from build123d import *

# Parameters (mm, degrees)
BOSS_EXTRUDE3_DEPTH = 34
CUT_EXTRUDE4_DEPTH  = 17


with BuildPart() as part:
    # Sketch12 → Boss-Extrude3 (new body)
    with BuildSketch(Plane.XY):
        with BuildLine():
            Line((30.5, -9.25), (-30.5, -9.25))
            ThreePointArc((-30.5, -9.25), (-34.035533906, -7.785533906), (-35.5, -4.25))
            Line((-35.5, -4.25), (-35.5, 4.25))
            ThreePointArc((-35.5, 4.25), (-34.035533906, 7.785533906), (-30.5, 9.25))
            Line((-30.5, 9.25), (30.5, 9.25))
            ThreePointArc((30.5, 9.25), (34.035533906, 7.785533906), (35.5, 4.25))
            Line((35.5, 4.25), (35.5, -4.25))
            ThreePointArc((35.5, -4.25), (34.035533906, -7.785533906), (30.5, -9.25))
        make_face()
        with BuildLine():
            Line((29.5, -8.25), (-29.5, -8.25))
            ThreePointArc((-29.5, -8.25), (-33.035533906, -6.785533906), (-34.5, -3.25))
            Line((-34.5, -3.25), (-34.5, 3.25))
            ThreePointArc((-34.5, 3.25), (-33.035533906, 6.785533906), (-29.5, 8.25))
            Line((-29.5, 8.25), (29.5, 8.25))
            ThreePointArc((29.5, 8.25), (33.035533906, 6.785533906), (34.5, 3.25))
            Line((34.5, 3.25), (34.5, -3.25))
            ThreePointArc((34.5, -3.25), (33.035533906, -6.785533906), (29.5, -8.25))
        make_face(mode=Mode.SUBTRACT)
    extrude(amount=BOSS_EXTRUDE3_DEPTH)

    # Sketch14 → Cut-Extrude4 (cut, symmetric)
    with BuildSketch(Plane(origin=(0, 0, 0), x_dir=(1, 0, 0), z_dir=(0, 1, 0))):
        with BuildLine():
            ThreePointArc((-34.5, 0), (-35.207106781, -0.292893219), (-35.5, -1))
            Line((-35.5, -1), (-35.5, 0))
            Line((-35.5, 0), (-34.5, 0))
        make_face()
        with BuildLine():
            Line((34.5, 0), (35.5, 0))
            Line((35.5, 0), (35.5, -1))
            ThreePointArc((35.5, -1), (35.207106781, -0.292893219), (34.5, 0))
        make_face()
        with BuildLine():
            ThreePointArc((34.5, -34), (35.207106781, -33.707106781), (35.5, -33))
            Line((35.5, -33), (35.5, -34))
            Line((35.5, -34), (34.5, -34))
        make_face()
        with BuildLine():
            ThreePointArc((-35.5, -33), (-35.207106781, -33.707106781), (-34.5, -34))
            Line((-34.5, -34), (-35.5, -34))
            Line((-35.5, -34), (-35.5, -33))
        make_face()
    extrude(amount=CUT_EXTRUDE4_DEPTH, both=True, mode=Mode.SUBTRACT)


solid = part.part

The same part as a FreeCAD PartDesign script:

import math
import FreeCAD as App
import Part
import Sketcher

V = App.Vector
Q = App.Units.Quantity

doc = App.newDocument("Part")
params = doc.addObject("Spreadsheet::Sheet", "Params")
for row, (alias, value) in enumerate([
    ("sketch1_radius", "5 mm"),
    ("sketch1_width", "61 mm"),
    ("sketch1_width2", "59 mm"),
    ("sketch1_height", "8.5 mm"),
    ("sketch1_height2", "6.5 mm"),
    ("pad1_length", "34 mm"),
    ("sketch2_radius", "1 mm"),
    ("pocket1_length", "34 mm"),
], start=1):
    params.set(f"A{row}", alias)
    params.set(f"B{row}", "=" + value)
    params.setAlias(f"B{row}", alias)

body = doc.addObject("PartDesign::Body", "Body")

sketch1 = body.newObject("Sketcher::SketchObject", "Sketch")
sketch1.AttachmentSupport = (doc.getObject("XY_Plane"), [""])
sketch1.MapMode = "FlatFace"
sketch1.addGeometry(Part.LineSegment(V(-30, -9, 0), V(30, -9, 0)), False)
sketch1.addGeometry(Part.ArcOfCircle(Part.Circle(V(30, -4, 0), V(0, 0, 1), 5), math.radians(-90), math.radians(0)), False)
sketch1.addGeometry(Part.LineSegment(V(36, -4, 0), V(36, 4, 0)), False)
sketch1.addGeometry(Part.ArcOfCircle(Part.Circle(V(30, 4, 0), V(0, 0, 1), 5), math.radians(0), math.radians(90)), False)
sketch1.addGeometry(Part.LineSegment(V(30, 9, 0), V(-30, 9, 0)), False)
sketch1.addGeometry(Part.ArcOfCircle(Part.Circle(V(-30, 4, 0), V(0, 0, 1), 5), math.radians(90), math.radians(180)), False)
sketch1.addGeometry(Part.LineSegment(V(-36, 4, 0), V(-36, -4, 0)), False)
sketch1.addGeometry(Part.ArcOfCircle(Part.Circle(V(-30, -4, 0), V(0, 0, 1), 5), math.radians(180), math.radians(270)), False)
sketch1.addGeometry(Part.LineSegment(V(30, -8, 0), V(-30, -8, 0)), False)
sketch1.addGeometry(Part.ArcOfCircle(Part.Circle(V(-30, -3, 0), V(0, 0, 1), 5), math.radians(180), math.radians(270)), False)
sketch1.addGeometry(Part.LineSegment(V(-34, -3, 0), V(-34, 3, 0)), False)
sketch1.addGeometry(Part.ArcOfCircle(Part.Circle(V(-30, 3, 0), V(0, 0, 1), 5), math.radians(90), math.radians(180)), False)
sketch1.addGeometry(Part.LineSegment(V(-30, 8, 0), V(30, 8, 0)), False)
sketch1.addGeometry(Part.ArcOfCircle(Part.Circle(V(30, 3, 0), V(0, 0, 1), 5), math.radians(0), math.radians(90)), False)
sketch1.addGeometry(Part.LineSegment(V(34, 3, 0), V(34, -3, 0)), False)
sketch1.addGeometry(Part.ArcOfCircle(Part.Circle(V(30, -3, 0), V(0, 0, 1), 5), math.radians(-90), math.radians(0)), False)
sketch1.addConstraint(Sketcher.Constraint("Tangent", 0, 2, 1, 1))
sketch1.addConstraint(Sketcher.Constraint("Tangent", 1, 2, 2, 1))
sketch1.addConstraint(Sketcher.Constraint("Tangent", 2, 2, 3, 1))
sketch1.addConstraint(Sketcher.Constraint("Tangent", 3, 2, 4, 1))
sketch1.addConstraint(Sketcher.Constraint("Tangent", 4, 2, 5, 1))
sketch1.addConstraint(Sketcher.Constraint("Tangent", 5, 2, 6, 1))
sketch1.addConstraint(Sketcher.Constraint("Tangent", 6, 2, 7, 1))
sketch1.addConstraint(Sketcher.Constraint("Tangent", 7, 2, 0, 1))
sketch1.addConstraint(Sketcher.Constraint("Tangent", 8, 2, 9, 2))
sketch1.addConstraint(Sketcher.Constraint("Tangent", 9, 1, 10, 1))
sketch1.addConstraint(Sketcher.Constraint("Tangent", 10, 2, 11, 2))
sketch1.addConstraint(Sketcher.Constraint("Tangent", 11, 1, 12, 1))
sketch1.addConstraint(Sketcher.Constraint("Tangent", 12, 2, 13, 2))
sketch1.addConstraint(Sketcher.Constraint("Tangent", 13, 1, 14, 1))
sketch1.addConstraint(Sketcher.Constraint("Tangent", 14, 2, 15, 2))
sketch1.addConstraint(Sketcher.Constraint("Tangent", 15, 1, 8, 1))
sketch1.addConstraint(Sketcher.Constraint("Horizontal", 0))
sketch1.addConstraint(Sketcher.Constraint("Vertical", 2))
sketch1.addConstraint(Sketcher.Constraint("Horizontal", 4))
sketch1.addConstraint(Sketcher.Constraint("Vertical", 6))
sketch1.addConstraint(Sketcher.Constraint("Horizontal", 8))
sketch1.addConstraint(Sketcher.Constraint("Vertical", 10))
sketch1.addConstraint(Sketcher.Constraint("Horizontal", 12))
sketch1.addConstraint(Sketcher.Constraint("Vertical", 14))
sketch1.addConstraint(Sketcher.Constraint("Equal", 1, 3))
sketch1.addConstraint(Sketcher.Constraint("Equal", 3, 5))
sketch1.addConstraint(Sketcher.Constraint("Equal", 5, 7))
sketch1.addConstraint(Sketcher.Constraint("Equal", 7, 9))
sketch1.addConstraint(Sketcher.Constraint("Equal", 9, 11))
sketch1.addConstraint(Sketcher.Constraint("Equal", 11, 13))
sketch1.addConstraint(Sketcher.Constraint("Equal", 13, 15))
sketch1.addConstraint(Sketcher.Constraint("Symmetric", 1, 3, 5, 3, -1, 1))
sketch1.addConstraint(Sketcher.Constraint("Symmetric", 9, 3, 13, 3, -1, 1))
sketch1.addConstraint(Sketcher.Constraint("Radius", 1, Q("5 mm")))
sketch1.addConstraint(Sketcher.Constraint("DistanceX", 0, 1, 0, 2, Q("61 mm")))
sketch1.addConstraint(Sketcher.Constraint("DistanceX", 8, 2, 8, 1, Q("59 mm")))
sketch1.addConstraint(Sketcher.Constraint("DistanceY", 2, 1, 2, 2, Q("8.5 mm")))
sketch1.addConstraint(Sketcher.Constraint("DistanceY", 10, 1, 10, 2, Q("6.5 mm")))
sketch1.setExpression("Constraints[33]", "Params.sketch1_radius")
sketch1.setExpression("Constraints[34]", "Params.sketch1_width")
sketch1.setExpression("Constraints[35]", "Params.sketch1_width2")
sketch1.setExpression("Constraints[36]", "Params.sketch1_height")
sketch1.setExpression("Constraints[37]", "Params.sketch1_height2")
pad1 = body.newObject("PartDesign::Pad", "Pad")
pad1.Profile = sketch1
pad1.setExpression("Length", "Params.pad1_length")

sketch2 = body.newObject("Sketcher::SketchObject", "Sketch001")
sketch2.AttachmentSupport = (doc.getObject("XZ_Plane"), [""])
sketch2.MapMode = "FlatFace"
sketch2.addGeometry(Part.ArcOfCircle(Part.Circle(V(-34.5, 1, 0), V(0, 0, 1), 1), math.radians(-180), math.radians(-90)), False)
sketch2.addGeometry(Part.LineSegment(V(-34.5, 0, 0), V(-35.5, 0, 0)), False)
sketch2.addGeometry(Part.LineSegment(V(-35.5, 0, 0), V(-35.5, 1, 0)), False)
sketch2.addGeometry(Part.LineSegment(V(35.5, 0, 0), V(34.5, 0, 0)), False)
sketch2.addGeometry(Part.ArcOfCircle(Part.Circle(V(34.5, 1, 0), V(0, 0, 1), 1), math.radians(-90), math.radians(0)), False)
sketch2.addGeometry(Part.LineSegment(V(35.5, 1, 0), V(35.5, 0, 0)), False)
sketch2.addGeometry(Part.ArcOfCircle(Part.Circle(V(34.5, 33, 0), V(0, 0, 1), 1), math.radians(0), math.radians(90)), False)
sketch2.addGeometry(Part.LineSegment(V(34.5, 34, 0), V(35.5, 34, 0)), False)
sketch2.addGeometry(Part.LineSegment(V(35.5, 34, 0), V(35.5, 33, 0)), False)
sketch2.addGeometry(Part.ArcOfCircle(Part.Circle(V(-34.5, 33, 0), V(0, 0, 1), 1), math.radians(90), math.radians(180)), False)
sketch2.addGeometry(Part.LineSegment(V(-35.5, 33, 0), V(-35.5, 34, 0)), False)
sketch2.addGeometry(Part.LineSegment(V(-35.5, 34, 0), V(-34.5, 34, 0)), False)
sketch2.addConstraint(Sketcher.Constraint("Tangent", 0, 2, 1, 1))
sketch2.addConstraint(Sketcher.Constraint("Coincident", 1, 2, 2, 1))
sketch2.addConstraint(Sketcher.Constraint("Tangent", 2, 2, 0, 1))
sketch2.addConstraint(Sketcher.Constraint("Tangent", 3, 2, 4, 1))
sketch2.addConstraint(Sketcher.Constraint("Tangent", 4, 2, 5, 1))
sketch2.addConstraint(Sketcher.Constraint("Coincident", 5, 2, 3, 1))
sketch2.addConstraint(Sketcher.Constraint("Tangent", 6, 2, 7, 1))
sketch2.addConstraint(Sketcher.Constraint("Coincident", 7, 2, 8, 1))
sketch2.addConstraint(Sketcher.Constraint("Tangent", 8, 2, 6, 1))
sketch2.addConstraint(Sketcher.Constraint("Tangent", 9, 2, 10, 1))
sketch2.addConstraint(Sketcher.Constraint("Coincident", 10, 2, 11, 1))
sketch2.addConstraint(Sketcher.Constraint("Tangent", 11, 2, 9, 1))
sketch2.addConstraint(Sketcher.Constraint("Horizontal", 1))
sketch2.addConstraint(Sketcher.Constraint("Vertical", 2))
sketch2.addConstraint(Sketcher.Constraint("Horizontal", 3))
sketch2.addConstraint(Sketcher.Constraint("Vertical", 5))
sketch2.addConstraint(Sketcher.Constraint("Horizontal", 7))
sketch2.addConstraint(Sketcher.Constraint("Vertical", 8))
sketch2.addConstraint(Sketcher.Constraint("Vertical", 10))
sketch2.addConstraint(Sketcher.Constraint("Horizontal", 11))
sketch2.addConstraint(Sketcher.Constraint("Equal", 0, 4))
sketch2.addConstraint(Sketcher.Constraint("Equal", 4, 6))
sketch2.addConstraint(Sketcher.Constraint("Equal", 6, 9))
sketch2.addConstraint(Sketcher.Constraint("Symmetric", 0, 2, 3, 2, -1, 1))
sketch2.addConstraint(Sketcher.Constraint("Symmetric", 6, 3, 9, 3, -2))
sketch2.addConstraint(Sketcher.Constraint("PointOnObject", 0, 2, -1))
sketch2.addConstraint(Sketcher.Constraint("Vertical", 4, 3, 6, 3))
sketch2.addConstraint(Sketcher.Constraint("Radius", 0, Q("1 mm")))
sketch2.addConstraint(Sketcher.Constraint("DistanceY", -1, 1, 6, 3, Q("33 mm")))
sketch2.addConstraint(Sketcher.Constraint("DistanceX", 0, 3, 4, 3, Q("69 mm")))
sketch2.setExpression("Constraints[27]", "Params.sketch2_radius")
pocket1 = body.newObject("PartDesign::Pocket", "Pocket")
pocket1.Profile = sketch2
pocket1.setExpression("Length", "Params.pocket1_length")
pocket1.Midplane = True

doc.recompute()
